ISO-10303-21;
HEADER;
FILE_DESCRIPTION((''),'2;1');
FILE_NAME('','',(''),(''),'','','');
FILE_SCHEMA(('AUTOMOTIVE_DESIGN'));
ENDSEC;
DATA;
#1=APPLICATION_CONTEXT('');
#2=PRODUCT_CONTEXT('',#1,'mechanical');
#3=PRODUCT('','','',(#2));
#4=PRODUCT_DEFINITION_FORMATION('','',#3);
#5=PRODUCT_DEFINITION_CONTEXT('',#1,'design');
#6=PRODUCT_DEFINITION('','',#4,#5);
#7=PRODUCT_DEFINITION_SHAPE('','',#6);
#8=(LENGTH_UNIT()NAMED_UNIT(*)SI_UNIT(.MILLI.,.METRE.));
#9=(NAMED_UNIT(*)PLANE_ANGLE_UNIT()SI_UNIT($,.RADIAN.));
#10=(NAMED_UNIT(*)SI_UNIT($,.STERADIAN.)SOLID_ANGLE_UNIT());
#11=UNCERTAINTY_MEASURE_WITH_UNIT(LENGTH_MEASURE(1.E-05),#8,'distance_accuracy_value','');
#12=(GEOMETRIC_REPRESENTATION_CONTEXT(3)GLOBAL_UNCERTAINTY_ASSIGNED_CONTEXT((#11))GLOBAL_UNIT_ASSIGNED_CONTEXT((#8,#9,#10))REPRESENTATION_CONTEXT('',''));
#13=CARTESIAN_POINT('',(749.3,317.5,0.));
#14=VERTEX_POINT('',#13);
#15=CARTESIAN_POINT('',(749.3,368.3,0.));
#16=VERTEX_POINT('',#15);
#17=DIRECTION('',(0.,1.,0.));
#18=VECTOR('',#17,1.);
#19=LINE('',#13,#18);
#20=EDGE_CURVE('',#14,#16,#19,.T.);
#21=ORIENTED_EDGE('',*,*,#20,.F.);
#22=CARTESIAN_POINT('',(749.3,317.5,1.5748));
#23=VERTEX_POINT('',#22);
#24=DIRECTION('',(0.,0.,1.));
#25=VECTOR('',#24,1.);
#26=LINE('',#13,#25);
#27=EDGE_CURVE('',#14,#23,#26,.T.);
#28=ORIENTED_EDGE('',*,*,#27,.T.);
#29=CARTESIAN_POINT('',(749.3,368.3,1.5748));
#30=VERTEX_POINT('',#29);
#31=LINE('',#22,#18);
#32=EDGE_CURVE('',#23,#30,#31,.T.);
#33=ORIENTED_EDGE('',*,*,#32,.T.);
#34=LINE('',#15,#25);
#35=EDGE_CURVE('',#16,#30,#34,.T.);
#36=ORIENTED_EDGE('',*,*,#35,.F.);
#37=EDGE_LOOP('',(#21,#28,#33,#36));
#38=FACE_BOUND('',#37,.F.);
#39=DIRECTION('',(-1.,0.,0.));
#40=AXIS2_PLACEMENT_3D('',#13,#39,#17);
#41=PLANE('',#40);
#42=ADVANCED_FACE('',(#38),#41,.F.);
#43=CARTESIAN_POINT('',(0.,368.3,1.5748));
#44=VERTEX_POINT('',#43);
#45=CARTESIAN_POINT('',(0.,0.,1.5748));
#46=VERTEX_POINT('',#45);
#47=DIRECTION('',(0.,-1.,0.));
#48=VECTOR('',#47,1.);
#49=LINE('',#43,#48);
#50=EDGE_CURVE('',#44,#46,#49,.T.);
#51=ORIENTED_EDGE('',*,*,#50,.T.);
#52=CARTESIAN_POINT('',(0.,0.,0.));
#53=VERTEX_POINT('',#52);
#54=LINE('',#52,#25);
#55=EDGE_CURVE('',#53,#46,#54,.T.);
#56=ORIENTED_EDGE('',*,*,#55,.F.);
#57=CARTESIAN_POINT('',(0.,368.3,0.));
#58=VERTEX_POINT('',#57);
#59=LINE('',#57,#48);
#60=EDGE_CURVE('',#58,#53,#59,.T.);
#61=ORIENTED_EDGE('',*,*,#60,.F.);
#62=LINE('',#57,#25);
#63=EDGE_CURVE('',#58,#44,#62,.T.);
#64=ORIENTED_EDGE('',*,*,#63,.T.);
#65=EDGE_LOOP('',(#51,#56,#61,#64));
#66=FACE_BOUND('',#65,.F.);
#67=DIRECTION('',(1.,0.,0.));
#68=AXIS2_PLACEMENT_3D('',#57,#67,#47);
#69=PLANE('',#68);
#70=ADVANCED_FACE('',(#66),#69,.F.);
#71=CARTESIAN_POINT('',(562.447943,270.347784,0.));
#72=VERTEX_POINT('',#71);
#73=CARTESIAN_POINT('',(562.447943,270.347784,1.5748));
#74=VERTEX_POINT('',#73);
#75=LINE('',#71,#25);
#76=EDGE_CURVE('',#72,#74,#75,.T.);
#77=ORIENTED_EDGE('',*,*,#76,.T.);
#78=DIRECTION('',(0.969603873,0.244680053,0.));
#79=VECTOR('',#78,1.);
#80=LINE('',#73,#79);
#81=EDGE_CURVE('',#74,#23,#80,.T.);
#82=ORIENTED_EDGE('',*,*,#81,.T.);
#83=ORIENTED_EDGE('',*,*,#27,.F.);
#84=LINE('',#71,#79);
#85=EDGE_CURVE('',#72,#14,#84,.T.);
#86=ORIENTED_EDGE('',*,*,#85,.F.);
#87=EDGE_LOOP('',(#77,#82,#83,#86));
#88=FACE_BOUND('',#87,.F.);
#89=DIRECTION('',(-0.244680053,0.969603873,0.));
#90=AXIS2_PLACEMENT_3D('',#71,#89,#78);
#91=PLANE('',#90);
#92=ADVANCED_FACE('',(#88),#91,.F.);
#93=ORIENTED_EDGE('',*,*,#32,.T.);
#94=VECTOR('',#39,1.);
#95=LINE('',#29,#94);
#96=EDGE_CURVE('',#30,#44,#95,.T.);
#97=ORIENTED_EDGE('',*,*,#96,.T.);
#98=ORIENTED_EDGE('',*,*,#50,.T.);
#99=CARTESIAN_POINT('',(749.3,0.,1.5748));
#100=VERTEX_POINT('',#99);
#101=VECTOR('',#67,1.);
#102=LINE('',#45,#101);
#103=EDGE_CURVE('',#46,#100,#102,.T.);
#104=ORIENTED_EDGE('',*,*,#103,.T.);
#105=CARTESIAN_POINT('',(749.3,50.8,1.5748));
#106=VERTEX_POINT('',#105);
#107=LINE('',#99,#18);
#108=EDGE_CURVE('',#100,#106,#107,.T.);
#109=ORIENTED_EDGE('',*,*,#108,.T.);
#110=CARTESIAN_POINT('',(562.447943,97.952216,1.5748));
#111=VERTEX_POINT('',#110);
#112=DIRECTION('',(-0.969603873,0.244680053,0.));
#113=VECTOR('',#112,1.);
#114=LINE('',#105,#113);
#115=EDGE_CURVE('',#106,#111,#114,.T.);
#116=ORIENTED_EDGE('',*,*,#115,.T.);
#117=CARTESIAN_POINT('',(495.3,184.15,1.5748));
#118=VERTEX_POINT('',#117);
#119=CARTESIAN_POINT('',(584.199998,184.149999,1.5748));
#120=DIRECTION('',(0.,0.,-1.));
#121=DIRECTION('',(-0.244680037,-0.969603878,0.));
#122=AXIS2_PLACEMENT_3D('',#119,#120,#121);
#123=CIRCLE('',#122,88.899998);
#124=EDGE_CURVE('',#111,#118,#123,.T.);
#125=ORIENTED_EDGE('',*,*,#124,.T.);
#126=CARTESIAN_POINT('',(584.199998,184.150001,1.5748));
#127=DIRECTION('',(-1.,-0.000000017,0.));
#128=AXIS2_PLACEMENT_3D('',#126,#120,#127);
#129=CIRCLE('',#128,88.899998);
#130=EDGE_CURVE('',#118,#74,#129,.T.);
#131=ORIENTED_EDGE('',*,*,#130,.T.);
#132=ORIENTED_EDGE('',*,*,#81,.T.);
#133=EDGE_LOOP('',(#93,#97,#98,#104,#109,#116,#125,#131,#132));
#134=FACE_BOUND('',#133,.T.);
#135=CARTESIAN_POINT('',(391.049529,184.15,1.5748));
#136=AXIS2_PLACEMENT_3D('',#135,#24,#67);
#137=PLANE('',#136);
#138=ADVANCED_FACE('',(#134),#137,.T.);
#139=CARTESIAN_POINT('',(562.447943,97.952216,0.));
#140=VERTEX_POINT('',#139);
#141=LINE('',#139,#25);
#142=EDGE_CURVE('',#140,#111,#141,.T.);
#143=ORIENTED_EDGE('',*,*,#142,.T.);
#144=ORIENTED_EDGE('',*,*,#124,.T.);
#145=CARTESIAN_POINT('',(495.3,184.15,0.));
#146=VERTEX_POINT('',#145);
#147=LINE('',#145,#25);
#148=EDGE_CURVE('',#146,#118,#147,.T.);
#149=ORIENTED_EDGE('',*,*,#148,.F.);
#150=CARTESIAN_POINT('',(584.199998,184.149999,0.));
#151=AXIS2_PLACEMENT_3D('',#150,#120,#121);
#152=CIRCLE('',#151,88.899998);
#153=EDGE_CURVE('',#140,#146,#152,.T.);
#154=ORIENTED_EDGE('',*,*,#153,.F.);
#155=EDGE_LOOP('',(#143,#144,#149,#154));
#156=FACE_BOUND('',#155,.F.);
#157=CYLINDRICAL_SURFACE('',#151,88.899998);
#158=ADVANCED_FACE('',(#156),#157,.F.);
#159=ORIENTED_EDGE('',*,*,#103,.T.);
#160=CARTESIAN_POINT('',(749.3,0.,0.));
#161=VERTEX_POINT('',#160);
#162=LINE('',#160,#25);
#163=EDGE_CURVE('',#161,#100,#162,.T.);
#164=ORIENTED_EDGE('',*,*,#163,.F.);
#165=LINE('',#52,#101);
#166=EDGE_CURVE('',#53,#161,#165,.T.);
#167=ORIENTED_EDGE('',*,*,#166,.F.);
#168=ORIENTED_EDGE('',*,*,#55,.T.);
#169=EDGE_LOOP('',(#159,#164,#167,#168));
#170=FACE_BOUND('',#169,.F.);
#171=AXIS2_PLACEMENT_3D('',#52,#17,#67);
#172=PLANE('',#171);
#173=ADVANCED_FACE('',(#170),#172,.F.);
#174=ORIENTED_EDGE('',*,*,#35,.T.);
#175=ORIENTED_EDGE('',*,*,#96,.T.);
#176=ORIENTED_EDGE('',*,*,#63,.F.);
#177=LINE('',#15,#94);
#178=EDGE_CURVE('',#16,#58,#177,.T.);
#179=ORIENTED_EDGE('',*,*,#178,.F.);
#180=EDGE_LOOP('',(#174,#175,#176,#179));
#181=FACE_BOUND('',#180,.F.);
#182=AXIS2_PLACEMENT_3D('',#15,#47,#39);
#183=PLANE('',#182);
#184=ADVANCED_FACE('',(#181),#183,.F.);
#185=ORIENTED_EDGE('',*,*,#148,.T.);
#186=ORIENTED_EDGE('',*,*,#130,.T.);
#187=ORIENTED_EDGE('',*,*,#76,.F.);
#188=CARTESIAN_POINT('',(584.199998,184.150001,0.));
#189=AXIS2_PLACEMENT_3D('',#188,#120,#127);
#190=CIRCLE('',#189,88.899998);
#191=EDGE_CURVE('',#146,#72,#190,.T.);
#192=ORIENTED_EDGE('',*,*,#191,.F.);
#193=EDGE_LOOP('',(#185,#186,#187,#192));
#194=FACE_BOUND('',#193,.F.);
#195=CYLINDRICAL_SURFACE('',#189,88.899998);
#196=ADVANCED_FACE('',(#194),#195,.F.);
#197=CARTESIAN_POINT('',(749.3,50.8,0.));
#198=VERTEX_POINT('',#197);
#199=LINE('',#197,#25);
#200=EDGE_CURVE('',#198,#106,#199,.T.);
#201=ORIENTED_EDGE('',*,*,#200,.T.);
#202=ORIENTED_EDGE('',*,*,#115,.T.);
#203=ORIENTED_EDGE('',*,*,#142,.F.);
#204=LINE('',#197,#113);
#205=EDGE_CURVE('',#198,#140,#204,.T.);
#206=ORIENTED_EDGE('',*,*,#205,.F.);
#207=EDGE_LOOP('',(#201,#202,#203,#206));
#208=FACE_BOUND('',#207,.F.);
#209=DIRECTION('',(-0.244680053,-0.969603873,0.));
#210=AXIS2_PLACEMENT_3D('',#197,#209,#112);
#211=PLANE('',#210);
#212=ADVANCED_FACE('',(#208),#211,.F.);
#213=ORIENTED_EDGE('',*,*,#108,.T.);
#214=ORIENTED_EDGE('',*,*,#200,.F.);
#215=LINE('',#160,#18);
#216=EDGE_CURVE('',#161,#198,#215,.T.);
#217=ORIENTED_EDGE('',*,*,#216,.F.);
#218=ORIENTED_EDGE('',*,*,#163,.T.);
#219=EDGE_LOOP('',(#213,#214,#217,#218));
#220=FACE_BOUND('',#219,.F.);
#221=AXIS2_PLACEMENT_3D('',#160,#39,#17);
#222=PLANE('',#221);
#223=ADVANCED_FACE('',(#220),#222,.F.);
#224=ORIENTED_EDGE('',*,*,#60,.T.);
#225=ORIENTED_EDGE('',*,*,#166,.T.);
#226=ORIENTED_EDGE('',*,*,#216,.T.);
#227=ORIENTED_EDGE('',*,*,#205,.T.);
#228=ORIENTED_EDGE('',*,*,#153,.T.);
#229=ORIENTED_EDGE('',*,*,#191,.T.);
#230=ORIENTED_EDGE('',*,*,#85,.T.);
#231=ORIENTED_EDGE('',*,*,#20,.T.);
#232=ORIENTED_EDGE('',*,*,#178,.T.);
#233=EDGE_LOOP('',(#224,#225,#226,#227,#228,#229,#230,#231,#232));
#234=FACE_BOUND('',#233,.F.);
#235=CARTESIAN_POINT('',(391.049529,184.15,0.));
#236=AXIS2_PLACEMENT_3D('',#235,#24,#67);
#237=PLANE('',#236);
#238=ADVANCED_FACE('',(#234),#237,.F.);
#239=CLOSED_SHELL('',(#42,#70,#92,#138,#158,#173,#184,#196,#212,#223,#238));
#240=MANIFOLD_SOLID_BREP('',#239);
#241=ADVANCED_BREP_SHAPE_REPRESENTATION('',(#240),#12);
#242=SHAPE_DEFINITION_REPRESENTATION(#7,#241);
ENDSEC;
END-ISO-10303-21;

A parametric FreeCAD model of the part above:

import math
import FreeCAD as App
import Part
import Sketcher
Q = App.Units.Quantity

doc = App.newDocument("Part")
body = doc.addObject("PartDesign::Body", "Body")

# Sketch on XY plane
sketch1 = doc.addObject("Sketcher::SketchObject", "Sketch")
body.addObject(sketch1)
sketch1.AttachmentSupport = (doc.XY_Plane, [""])
sketch1.MapMode = "FlatFace"
sketch1.addGeometry(Part.LineSegment(App.Vector(0, 368, 0), App.Vector(0, 0, 0)), False)
sketch1.addGeometry(Part.LineSegment(App.Vector(0, 0, 0), App.Vector(749, 0, 0)), False)
sketch1.addGeometry(Part.LineSegment(App.Vector(749, 0, 0), App.Vector(749, 51, 0)), False)
sketch1.addGeometry(Part.LineSegment(App.Vector(749, 51, 0), App.Vector(562, 98, 0)), False)
sketch1.addGeometry(Part.ArcOfCircle(Part.Circle(App.Vector(584, 184, 0), App.Vector(0, 0, 1), 89), math.radians(180), math.radians(256)), False)
sketch1.addGeometry(Part.ArcOfCircle(Part.Circle(App.Vector(584, 184, 0), App.Vector(0, 0, 1), 89), math.radians(104), math.radians(180)), False)
sketch1.addGeometry(Part.LineSegment(App.Vector(562, 270, 0), App.Vector(749, 318, 0)), False)
sketch1.addGeometry(Part.LineSegment(App.Vector(749, 318, 0), App.Vector(749, 368, 0)), False)
sketch1.addGeometry(Part.LineSegment(App.Vector(749, 368, 0), App.Vector(0, 368, 0)), False)
sketch1.addConstraint(Sketcher.Constraint("Coincident", 0, 2, 1, 1))
sketch1.addConstraint(Sketcher.Constraint("Coincident", 1, 2, 2, 1))
sketch1.addConstraint(Sketcher.Constraint("Coincident", 2, 2, 3, 1))
sketch1.addConstraint(Sketcher.Constraint("Tangent", 3, 2, 4, 2))
sketch1.addConstraint(Sketcher.Constraint("Tangent", 4, 1, 5, 2))
sketch1.addConstraint(Sketcher.Constraint("Tangent", 5, 1, 6, 1))
sketch1.addConstraint(Sketcher.Constraint("Coincident", 6, 2, 7, 1))
sketch1.addConstraint(Sketcher.Constraint("Coincident", 7, 2, 8, 1))
sketch1.addConstraint(Sketcher.Constraint("Coincident", 8, 2, 0, 1))
sketch1.addConstraint(Sketcher.Constraint("Vertical", 0))
sketch1.addConstraint(Sketcher.Constraint("Horizontal", 1))
sketch1.addConstraint(Sketcher.Constraint("Vertical", 2))
sketch1.addConstraint(Sketcher.Constraint("Vertical", 7))
sketch1.addConstraint(Sketcher.Constraint("Horizontal", 8))
sketch1.addConstraint(Sketcher.Constraint("Coincident", 0, 2, -1, 1))
sketch1.addConstraint(Sketcher.Constraint("Equal", 4, 5))
sketch1.addConstraint(Sketcher.Constraint("Horizontal", 5, 3, 4, 1))
sketch1.addConstraint(Sketcher.Constraint("Vertical", 3, 2, 5, 1))
sketch1.addConstraint(Sketcher.Constraint("Vertical", 2, 2, 6, 2))
sketch1.addConstraint(Sketcher.Constraint("Equal", 2, 7))
sketch1.addConstraint(Sketcher.Constraint("Radius", 4, Q("3.4999999 in")))
sketch1.addConstraint(Sketcher.Constraint("DistanceY", 2, 1, 2, 2, Q("2 in")))
sketch1.addConstraint(Sketcher.Constraint("DistanceX", 1, 1, 1, 2, Q("29.5 in")))
sketch1.addConstraint(Sketcher.Constraint("DistanceY", 0, 2, 0, 1, Q("14.5 in")))
sketch1.addConstraint(Sketcher.Constraint("DistanceX", -1, 1, 4, 3, Q("22.9999999 in")))
pad1 = doc.addObject("PartDesign::Pad", "Pad")
body.addObject(pad1)
pad1.Profile = sketch1
pad1.Length = Q("0.062 in")

doc.recompute()
